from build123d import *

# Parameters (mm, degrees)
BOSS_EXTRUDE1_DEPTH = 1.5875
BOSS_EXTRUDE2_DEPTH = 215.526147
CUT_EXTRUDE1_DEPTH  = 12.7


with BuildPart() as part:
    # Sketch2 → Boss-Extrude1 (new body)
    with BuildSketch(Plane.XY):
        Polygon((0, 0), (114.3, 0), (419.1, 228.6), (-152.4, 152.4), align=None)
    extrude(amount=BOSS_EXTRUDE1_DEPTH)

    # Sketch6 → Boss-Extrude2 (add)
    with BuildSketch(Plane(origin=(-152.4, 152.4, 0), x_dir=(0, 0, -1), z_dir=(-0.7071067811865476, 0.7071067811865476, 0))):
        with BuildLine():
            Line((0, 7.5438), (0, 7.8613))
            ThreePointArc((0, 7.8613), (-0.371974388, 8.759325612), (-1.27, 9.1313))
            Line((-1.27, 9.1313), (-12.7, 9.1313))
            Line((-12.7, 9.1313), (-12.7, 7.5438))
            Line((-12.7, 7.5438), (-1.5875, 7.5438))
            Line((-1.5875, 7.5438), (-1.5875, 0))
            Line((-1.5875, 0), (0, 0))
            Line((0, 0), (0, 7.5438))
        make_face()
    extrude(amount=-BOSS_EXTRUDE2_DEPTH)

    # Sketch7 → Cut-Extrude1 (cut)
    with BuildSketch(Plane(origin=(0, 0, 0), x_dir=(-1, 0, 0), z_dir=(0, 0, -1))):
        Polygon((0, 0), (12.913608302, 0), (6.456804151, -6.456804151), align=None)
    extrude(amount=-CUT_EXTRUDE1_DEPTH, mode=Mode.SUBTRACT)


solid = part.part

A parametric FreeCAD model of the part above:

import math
import FreeCAD as App
import Part
import Sketcher
from FreeCAD import Vector
Q = App.Units.Quantity


def add_polygon(sketch, points):
    """Adds a closed chain of lines whose ends are joined by coincident constraints."""
    first, n = sketch.GeometryCount, len(points)
    for a, b in zip(points, points[1:] + points[:1]):
        sketch.addGeometry(Part.LineSegment(App.Vector(*a, 0), App.Vector(*b, 0)), False)
    for i in range(n):
        sketch.addConstraint(Sketcher.Constraint("Coincident", first + i, 2, first + (i + 1) % n, 1))

doc = App.newDocument("Part")
params = doc.addObject("Spreadsheet::Sheet", "Params")
for row, (alias, value) in enumerate([
    ("sketch1_length", "15 in"),
    ("sketch1_width", "4.5 in"),
    ("pad1_length", "0.0625 in"),
    ("sketch2_radius", "0.05 in"),
    ("sketch2_width", "0.45 in"),
    ("sketch2_width2", "0.4375 in"),
    ("sketch2_height", "0.297 in"),
    ("pad2_length", "215.526147 mm"),
    ("pocket1_length", "0.5 in"),
], start=1):
    params.set(f"A{row}", alias)
    params.set(f"B{row}", "=" + value)
    params.setAlias(f"B{row}", alias)

body = doc.addObject("PartDesign::Body", "Body")

sketch1 = body.newObject("Sketcher::SketchObject", "Sketch")
sketch1.AttachmentSupport = (doc.getObject("XY_Plane"), [""])
sketch1.MapMode = "FlatFace"
add_polygon(sketch1, [(0, 0), (114, 0), (419, 229), (-152, 152)])
sketch1.addConstraint([
    Sketcher.Constraint("Horizontal", 0),
    Sketcher.Constraint("Coincident", 3, 2, -1, 1),
    Sketcher.Constraint("Distance", 1, Q("15 in")),
    Sketcher.Constraint("DistanceX", 0, 1, 0, 2, Q("4.5 in")),
    Sketcher.Constraint("DistanceY", -1, 1, 1, 2, Q("9 in")),
    Sketcher.Constraint("DistanceX", 2, 2, -1, 1, Q("6 in")),
    Sketcher.Constraint("DistanceY", -1, 1, 2, 2, Q("6 in")),
])
sketch1.setExpression("Constraints[6]", "Params.sketch1_length")
sketch1.setExpression("Constraints[7]", "Params.sketch1_width")
pad1 = body.newObject("PartDesign::Pad", "Pad")
pad1.Profile = sketch1
pad1.setExpression("Length", "Params.pad1_length")

sketch2 = body.newObject("Sketcher::SketchObject", "Sketch001")
sketch2.Placement = App.Placement(Vector(-152.4, 152.4, 0), App.Rotation(Vector(0, 0, -1), Vector(-0.707106781, -0.707106781, 0), Vector(-0.707106781, 0.707106781, 0), "ZXY"))
sketch2.addGeometry([
    Part.ArcOfCircle(Part.Circle(Vector(-1.3, 7.9, 0), Vector(0, 0, 1), 1.3), math.radians(0), math.radians(90)),
    Part.LineSegment(Vector(-1.3, 9.1, 0), Vector(-12.7, 9.1, 0)),
    Part.LineSegment(Vector(-12.7, 9.1, 0), Vector(-12.7, 7.5, 0)),
    Part.LineSegment(Vector(-12.7, 7.5, 0), Vector(-1.6, 7.5, 0)),
    Part.LineSegment(Vector(-1.6, 7.5, 0), Vector(-1.6, 0, 0)),
    Part.LineSegment(Vector(-1.6, 0, 0), Vector(0, 0, 0)),
    Part.LineSegment(Vector(0, 0, 0), Vector(0, 7.9, 0)),
], False)
sketch2.addConstraint([
    Sketcher.Constraint("Tangent", 0, 2, 1, 1),
    Sketcher.Constraint("Coincident", 1, 2, 2, 1),
    Sketcher.Constraint("Coincident", 2, 2, 3, 1),
    Sketcher.Constraint("Coincident", 3, 2, 4, 1),
    Sketcher.Constraint("Coincident", 4, 2, 5, 1),
    Sketcher.Constraint("Coincident", 5, 2, 6, 1),
    Sketcher.Constraint("Tangent", 6, 2, 0, 1),
    Sketcher.Constraint("Horizontal", 1),
    Sketcher.Constraint("Vertical", 2),
    Sketcher.Constraint("Horizontal", 3),
    Sketcher.Constraint("Vertical", 4),
    Sketcher.Constraint("Horizontal", 5),
    Sketcher.Constraint("Vertical", 6),
    Sketcher.Constraint("Coincident", 5, 2, -1, 1),
    Sketcher.Constraint("Equal", 5, 2),
    Sketcher.Constraint("Radius", 0, Q("0.05 in")),
    Sketcher.Constraint("DistanceX", 1, 2, 1, 1, Q("0.45 in")),
    Sketcher.Constraint("DistanceX", 3, 1, 3, 2, Q("0.4375 in")),
    Sketcher.Constraint("DistanceY", 4, 2, 4, 1, Q("0.297 in")),
])
sketch2.setExpression("Constraints[15]", "Params.sketch2_radius")
sketch2.setExpression("Constraints[16]", "Params.sketch2_width")
sketch2.setExpression("Constraints[17]", "Params.sketch2_width2")
sketch2.setExpression("Constraints[18]", "Params.sketch2_height")
pad2 = body.newObject("PartDesign::Pad", "Pad001")
pad2.Profile = sketch2
pad2.setExpression("Length", "Params.pad2_length")
pad2.Reversed = True

sketch3 = body.newObject("Sketcher::SketchObject", "Sketch002")
sketch3.AttachmentSupport = (doc.getObject("XY_Plane"), [""])
sketch3.MapMode = "FlatFace"
add_polygon(sketch3, [(-13, 0), (0, 0), (-6, -6)])
sketch3.addConstraint([
    Sketcher.Constraint("Horizontal", 0),
    Sketcher.Constraint("Coincident", 0, 2, -1, 1),
    Sketcher.Constraint("Perpendicular", 1, 2),
    Sketcher.Constraint("Equal", 1, 2),
    Sketcher.Constraint("Distance", 1, Q("0.3595 in")),
])
pocket1 = body.newObject("PartDesign::Pocket", "Pocket")
pocket1.Profile = sketch3
pocket1.setExpression("Length", "Params.pocket1_length")
pocket1.Reversed = True

doc.recompute()
